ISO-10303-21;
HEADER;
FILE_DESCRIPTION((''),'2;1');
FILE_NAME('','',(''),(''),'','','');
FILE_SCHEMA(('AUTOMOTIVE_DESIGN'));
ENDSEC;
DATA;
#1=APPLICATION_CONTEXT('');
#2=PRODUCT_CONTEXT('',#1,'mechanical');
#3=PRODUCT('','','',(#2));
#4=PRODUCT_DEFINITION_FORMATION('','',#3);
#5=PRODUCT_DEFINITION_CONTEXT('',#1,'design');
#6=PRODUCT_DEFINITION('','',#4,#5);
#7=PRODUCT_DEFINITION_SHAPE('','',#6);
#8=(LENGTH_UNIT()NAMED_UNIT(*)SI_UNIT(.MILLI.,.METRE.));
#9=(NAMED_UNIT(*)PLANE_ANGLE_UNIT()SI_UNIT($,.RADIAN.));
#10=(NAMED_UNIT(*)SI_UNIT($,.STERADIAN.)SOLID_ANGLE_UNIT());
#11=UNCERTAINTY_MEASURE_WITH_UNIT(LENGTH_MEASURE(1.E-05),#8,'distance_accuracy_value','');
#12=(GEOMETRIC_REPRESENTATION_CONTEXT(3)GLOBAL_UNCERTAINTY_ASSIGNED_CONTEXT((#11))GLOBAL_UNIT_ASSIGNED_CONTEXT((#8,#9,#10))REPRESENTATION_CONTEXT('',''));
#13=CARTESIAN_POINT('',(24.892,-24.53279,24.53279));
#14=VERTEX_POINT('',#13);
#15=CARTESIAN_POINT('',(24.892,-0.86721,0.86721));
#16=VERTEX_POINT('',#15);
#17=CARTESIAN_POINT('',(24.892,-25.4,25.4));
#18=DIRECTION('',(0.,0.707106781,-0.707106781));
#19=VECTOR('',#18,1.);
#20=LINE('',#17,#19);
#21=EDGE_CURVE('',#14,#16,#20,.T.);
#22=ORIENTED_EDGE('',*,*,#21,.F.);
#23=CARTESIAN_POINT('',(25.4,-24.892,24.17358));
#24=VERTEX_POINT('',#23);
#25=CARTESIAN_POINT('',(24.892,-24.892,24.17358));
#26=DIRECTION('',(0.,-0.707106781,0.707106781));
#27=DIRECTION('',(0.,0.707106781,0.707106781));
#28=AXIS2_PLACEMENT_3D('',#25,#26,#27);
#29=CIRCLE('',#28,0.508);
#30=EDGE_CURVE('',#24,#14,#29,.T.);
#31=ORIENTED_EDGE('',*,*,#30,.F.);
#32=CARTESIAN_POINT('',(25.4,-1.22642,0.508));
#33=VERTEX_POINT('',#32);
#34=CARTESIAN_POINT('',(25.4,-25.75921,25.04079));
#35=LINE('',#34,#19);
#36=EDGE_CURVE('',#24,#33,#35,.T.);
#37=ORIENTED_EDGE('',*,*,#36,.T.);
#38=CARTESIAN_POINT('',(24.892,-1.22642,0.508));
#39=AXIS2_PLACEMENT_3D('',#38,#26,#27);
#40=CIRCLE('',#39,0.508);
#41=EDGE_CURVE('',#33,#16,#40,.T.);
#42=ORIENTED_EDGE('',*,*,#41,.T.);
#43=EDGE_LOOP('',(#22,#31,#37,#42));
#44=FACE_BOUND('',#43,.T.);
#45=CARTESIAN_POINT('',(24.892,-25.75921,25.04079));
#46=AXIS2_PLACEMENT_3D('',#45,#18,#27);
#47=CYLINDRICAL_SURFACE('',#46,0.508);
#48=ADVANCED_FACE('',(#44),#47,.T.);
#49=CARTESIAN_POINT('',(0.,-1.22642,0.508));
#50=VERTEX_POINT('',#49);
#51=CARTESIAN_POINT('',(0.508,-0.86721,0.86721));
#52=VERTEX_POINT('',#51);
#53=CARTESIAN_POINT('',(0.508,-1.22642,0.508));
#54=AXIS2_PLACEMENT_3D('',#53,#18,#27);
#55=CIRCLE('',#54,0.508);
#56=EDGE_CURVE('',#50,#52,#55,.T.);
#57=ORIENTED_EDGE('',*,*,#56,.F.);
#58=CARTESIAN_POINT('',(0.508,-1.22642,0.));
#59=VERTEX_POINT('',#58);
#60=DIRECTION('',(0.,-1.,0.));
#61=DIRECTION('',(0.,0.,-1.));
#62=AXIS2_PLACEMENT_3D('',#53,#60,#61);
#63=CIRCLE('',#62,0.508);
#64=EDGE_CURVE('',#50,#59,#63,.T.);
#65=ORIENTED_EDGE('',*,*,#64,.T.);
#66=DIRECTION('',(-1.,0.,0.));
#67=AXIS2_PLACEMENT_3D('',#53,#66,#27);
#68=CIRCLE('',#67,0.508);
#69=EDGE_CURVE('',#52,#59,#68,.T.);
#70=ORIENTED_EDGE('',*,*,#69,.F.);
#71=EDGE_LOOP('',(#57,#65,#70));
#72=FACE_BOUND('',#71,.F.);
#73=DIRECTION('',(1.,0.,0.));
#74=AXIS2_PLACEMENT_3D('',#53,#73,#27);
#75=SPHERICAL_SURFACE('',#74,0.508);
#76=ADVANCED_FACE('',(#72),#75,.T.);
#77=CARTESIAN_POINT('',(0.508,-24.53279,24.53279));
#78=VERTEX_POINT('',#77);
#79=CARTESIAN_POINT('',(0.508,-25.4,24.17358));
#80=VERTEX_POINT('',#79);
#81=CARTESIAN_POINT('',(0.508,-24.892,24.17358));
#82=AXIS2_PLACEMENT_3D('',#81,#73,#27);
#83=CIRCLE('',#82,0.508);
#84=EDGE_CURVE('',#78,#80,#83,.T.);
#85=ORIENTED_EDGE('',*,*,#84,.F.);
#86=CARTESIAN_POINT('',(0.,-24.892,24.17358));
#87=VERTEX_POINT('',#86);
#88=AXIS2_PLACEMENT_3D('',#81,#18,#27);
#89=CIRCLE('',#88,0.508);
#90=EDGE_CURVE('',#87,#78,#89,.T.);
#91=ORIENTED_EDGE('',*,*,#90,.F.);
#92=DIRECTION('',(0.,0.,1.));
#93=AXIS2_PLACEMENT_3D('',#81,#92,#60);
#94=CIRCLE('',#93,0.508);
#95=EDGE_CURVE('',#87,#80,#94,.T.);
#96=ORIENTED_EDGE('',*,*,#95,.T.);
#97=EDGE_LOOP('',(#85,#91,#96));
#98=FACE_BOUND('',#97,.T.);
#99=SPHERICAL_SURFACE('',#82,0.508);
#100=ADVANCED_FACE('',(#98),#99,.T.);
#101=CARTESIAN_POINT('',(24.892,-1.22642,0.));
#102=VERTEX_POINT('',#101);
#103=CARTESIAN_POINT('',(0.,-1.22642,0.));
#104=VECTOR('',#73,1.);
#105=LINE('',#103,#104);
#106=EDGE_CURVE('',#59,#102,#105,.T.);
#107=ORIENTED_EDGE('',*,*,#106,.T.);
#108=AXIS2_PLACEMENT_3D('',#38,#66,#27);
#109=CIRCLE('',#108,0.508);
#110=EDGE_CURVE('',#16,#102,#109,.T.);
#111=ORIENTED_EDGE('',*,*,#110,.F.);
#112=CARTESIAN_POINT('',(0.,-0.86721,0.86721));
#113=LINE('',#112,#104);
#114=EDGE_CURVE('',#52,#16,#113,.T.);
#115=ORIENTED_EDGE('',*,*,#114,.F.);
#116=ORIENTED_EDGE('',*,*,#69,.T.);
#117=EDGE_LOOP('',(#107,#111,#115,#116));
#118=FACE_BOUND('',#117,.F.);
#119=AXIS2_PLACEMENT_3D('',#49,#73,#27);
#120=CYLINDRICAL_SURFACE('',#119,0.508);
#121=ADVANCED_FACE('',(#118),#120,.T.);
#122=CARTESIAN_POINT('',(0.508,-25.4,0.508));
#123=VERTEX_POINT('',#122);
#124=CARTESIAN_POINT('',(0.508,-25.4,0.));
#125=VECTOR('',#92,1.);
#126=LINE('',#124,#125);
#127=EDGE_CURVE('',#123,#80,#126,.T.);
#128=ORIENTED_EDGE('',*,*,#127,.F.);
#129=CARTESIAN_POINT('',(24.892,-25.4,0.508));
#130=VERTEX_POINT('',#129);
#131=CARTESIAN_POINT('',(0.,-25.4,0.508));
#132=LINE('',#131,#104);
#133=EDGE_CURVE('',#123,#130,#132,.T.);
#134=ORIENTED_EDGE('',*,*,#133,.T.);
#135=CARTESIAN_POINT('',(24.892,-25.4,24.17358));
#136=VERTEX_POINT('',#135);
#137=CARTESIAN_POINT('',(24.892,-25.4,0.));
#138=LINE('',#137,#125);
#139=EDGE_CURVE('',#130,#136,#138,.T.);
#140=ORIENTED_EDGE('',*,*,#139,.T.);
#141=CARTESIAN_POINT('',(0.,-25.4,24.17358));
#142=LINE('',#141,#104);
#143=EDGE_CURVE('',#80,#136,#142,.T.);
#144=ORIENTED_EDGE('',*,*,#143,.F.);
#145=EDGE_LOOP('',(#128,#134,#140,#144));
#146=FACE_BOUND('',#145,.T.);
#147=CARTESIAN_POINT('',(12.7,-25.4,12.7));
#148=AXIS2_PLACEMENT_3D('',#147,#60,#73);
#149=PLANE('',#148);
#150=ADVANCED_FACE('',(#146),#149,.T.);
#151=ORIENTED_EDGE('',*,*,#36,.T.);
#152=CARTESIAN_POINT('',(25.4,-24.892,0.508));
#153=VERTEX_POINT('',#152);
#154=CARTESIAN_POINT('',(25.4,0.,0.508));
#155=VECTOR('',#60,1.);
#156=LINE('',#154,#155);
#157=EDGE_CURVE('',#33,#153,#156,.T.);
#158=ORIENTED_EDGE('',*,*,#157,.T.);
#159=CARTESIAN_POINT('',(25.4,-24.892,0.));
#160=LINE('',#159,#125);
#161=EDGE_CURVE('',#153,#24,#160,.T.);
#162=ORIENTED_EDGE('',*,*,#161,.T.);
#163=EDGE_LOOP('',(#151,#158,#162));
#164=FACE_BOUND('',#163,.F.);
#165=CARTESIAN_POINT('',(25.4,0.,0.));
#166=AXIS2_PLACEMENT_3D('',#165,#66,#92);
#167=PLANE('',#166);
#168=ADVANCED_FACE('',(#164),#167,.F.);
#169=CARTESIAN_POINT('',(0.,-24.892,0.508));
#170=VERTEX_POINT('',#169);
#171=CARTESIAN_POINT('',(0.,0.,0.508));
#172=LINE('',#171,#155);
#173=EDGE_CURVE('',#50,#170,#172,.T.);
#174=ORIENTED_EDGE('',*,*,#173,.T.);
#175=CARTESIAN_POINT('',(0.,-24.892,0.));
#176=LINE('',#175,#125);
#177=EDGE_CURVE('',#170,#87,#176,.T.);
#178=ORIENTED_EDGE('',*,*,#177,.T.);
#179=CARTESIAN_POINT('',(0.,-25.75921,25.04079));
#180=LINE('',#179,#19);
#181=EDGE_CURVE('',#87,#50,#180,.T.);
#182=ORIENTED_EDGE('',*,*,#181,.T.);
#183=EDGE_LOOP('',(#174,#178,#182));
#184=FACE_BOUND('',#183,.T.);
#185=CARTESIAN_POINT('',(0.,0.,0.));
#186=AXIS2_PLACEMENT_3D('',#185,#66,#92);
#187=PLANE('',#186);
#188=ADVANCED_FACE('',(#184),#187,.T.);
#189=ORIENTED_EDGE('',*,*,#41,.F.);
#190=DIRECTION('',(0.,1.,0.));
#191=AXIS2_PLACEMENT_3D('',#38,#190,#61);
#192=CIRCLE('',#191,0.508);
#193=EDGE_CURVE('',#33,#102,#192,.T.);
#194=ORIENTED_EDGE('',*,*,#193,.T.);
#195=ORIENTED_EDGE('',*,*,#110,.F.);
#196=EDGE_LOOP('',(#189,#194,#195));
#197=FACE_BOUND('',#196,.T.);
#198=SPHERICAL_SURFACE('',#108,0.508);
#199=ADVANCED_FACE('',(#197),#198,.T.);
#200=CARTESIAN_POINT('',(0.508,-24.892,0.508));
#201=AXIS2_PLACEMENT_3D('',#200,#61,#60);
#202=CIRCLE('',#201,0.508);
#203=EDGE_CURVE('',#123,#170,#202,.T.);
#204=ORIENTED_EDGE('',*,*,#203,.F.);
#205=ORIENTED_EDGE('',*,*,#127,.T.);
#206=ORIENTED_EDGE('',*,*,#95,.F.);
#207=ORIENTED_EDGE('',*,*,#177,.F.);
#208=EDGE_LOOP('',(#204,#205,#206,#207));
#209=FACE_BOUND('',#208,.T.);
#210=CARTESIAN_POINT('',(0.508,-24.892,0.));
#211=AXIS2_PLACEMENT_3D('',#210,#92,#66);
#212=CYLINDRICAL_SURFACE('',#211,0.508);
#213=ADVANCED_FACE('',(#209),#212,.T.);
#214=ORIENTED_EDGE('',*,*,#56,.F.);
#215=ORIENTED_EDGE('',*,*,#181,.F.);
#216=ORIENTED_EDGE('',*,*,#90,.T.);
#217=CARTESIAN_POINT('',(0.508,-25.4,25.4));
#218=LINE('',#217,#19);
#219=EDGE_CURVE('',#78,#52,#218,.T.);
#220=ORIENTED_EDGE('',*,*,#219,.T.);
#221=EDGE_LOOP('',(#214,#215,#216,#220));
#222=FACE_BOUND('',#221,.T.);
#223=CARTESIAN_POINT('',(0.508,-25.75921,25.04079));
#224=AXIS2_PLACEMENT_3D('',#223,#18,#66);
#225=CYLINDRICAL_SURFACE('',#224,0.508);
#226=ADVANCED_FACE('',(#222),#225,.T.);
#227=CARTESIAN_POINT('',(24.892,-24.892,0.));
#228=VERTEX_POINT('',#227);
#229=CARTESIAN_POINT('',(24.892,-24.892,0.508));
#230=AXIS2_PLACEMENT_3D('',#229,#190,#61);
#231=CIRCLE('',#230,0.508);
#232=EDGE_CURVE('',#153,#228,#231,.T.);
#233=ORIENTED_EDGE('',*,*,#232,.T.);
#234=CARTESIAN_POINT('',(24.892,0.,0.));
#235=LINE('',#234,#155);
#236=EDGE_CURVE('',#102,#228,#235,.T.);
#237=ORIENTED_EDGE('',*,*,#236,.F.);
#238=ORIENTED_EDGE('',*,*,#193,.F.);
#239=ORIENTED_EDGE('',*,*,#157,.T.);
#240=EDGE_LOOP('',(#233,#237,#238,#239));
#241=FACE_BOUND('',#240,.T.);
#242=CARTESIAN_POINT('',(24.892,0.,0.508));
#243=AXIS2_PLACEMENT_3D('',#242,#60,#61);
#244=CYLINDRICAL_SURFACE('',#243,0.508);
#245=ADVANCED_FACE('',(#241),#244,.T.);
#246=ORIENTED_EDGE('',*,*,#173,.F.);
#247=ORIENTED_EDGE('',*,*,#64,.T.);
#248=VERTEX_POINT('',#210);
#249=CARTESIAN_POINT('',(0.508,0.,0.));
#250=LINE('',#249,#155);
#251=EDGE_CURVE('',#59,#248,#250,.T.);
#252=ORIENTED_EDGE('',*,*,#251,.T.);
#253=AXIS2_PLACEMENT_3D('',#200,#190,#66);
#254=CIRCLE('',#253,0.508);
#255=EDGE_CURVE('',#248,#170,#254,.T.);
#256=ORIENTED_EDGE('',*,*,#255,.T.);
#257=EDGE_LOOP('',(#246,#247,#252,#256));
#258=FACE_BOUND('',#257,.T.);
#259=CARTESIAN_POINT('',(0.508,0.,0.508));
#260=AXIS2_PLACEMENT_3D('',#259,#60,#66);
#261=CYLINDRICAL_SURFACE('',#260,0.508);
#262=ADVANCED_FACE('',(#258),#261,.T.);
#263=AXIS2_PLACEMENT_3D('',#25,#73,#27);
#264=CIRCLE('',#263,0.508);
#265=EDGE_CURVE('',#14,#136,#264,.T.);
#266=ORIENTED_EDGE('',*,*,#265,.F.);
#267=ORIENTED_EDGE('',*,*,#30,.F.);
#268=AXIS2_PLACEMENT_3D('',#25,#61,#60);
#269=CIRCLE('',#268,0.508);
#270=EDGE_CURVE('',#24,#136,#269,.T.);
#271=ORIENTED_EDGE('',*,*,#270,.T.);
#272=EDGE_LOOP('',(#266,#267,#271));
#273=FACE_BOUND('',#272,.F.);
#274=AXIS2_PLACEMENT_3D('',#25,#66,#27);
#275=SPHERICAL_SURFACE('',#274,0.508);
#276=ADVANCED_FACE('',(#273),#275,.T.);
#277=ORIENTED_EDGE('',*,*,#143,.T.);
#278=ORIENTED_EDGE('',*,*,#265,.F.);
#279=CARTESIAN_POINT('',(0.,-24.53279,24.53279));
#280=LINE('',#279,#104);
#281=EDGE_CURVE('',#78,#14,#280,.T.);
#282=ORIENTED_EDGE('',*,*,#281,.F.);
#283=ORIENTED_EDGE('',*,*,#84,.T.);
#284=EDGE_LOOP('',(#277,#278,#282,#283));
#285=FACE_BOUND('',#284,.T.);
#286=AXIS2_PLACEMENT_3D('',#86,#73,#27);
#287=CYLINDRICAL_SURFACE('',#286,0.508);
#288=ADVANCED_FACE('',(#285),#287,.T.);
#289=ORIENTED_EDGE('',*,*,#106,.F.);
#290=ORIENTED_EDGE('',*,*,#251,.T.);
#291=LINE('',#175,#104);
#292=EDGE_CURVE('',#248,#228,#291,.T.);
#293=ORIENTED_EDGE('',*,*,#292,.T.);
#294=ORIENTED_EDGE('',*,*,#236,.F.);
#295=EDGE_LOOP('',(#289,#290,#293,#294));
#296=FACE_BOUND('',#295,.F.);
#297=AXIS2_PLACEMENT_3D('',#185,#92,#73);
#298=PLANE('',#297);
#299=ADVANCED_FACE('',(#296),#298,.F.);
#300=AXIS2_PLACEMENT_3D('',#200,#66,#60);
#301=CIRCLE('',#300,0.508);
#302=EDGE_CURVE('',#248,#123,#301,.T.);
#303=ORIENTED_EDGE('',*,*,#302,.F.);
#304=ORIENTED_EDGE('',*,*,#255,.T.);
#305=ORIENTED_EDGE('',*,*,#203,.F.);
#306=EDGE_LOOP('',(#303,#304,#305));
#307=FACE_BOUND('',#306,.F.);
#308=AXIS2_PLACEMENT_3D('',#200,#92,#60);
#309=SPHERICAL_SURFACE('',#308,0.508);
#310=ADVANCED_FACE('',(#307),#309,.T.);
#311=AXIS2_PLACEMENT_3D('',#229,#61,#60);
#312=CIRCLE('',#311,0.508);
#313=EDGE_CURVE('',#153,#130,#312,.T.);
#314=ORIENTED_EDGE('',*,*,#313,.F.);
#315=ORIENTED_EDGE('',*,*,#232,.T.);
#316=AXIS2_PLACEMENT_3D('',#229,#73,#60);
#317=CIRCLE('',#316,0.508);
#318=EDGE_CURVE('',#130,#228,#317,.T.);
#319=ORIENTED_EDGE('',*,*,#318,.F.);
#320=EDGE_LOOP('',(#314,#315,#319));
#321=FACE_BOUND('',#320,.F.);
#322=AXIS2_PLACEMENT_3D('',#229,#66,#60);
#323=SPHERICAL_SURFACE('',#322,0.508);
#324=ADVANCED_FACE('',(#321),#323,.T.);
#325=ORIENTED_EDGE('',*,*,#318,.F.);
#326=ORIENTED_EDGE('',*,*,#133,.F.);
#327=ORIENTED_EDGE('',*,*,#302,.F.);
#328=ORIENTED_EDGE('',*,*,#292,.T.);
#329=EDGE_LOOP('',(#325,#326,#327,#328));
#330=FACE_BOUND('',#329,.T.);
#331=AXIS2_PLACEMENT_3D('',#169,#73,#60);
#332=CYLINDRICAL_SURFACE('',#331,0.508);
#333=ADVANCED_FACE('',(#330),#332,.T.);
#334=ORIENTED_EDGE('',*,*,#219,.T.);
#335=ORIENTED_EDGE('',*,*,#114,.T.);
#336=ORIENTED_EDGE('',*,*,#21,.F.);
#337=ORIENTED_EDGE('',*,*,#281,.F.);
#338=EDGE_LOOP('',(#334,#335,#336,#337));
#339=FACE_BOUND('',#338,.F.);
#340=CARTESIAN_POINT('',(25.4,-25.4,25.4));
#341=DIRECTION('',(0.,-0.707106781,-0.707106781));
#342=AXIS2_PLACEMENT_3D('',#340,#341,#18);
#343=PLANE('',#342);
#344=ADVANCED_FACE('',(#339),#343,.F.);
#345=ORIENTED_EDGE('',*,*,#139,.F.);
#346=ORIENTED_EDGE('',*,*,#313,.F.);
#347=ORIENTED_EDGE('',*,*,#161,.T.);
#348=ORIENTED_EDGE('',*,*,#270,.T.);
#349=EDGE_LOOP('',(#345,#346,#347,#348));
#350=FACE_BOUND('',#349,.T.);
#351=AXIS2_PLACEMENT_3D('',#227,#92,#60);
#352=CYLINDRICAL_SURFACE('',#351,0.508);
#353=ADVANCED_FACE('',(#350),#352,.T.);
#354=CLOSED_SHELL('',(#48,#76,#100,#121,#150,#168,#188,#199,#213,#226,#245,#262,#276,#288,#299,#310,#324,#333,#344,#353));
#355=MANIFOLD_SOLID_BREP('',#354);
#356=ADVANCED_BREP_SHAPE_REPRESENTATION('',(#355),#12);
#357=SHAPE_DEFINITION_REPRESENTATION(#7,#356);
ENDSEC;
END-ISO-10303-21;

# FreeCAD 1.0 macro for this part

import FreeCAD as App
import Part
import Sketcher
Q = App.Units.Quantity


def add_polygon(sketch, points):
    """Adds a closed chain of lines whose ends are joined by coincident constraints."""
    first, n = sketch.GeometryCount, len(points)
    for a, b in zip(points, points[1:] + points[:1]):
        sketch.addGeometry(Part.LineSegment(App.Vector(*a, 0), App.Vector(*b, 0)), False)
    for i in range(n):
        sketch.addConstraint(Sketcher.Constraint("Coincident", first + i, 2, first + (i + 1) % n, 1))

doc = App.newDocument("Part")
params = doc.addObject("Spreadsheet::Sheet", "Params")
for row, (alias, value) in enumerate([
    ("sketch1_width", "1 in"),
    ("pad1_length", "1 in"),
    ("sketch2_width", "1 in"),
    ("pocket1_length", "1 in"),
    ("fillet_radius", "0.02 in"),
], start=1):
    params.set(f"A{row}", alias)
    params.set(f"B{row}", "=" + value)
    params.setAlias(f"B{row}", alias)

body = doc.addObject("PartDesign::Body", "Body")

# Sketch on XZ plane
sketch1 = body.newObject("Sketcher::SketchObject", "Sketch")
sketch1.AttachmentSupport = (doc.getObject("XZ_Plane"), [""])
sketch1.MapMode = "FlatFace"
add_polygon(sketch1, [(0, 25.4), (0, 0), (25.4, 0), (25.4, 25.4)])  # lines 0-3
sketch1.addConstraint([
    Sketcher.Constraint("Vertical", 0),
    Sketcher.Constraint("Horizontal", 1),
    Sketcher.Constraint("Vertical", 2),
    Sketcher.Constraint("Horizontal", 3),
    Sketcher.Constraint("Coincident", 0, 2, -1, 1),
    Sketcher.Constraint("Equal", 3, 0),
    Sketcher.Constraint("DistanceX", 1, 1, 1, 2, Q("1 in")),
])
sketch1.setExpression("Constraints[10]", "Params.sketch1_width")
pad1 = body.newObject("PartDesign::Pad", "Pad")
pad1.Profile = sketch1
pad1.setExpression("Length", "Params.pad1_length")

# Sketch on YZ plane
sketch2 = body.newObject("Sketcher::SketchObject", "Sketch001")
sketch2.AttachmentSupport = (doc.getObject("YZ_Plane"), [""])
sketch2.MapMode = "FlatFace"
sketch2.AttachmentOffset = App.Placement(App.Vector(0, 0, 1 * 25.4), App.Rotation())
add_polygon(sketch2, [(0, 25.4), (-25.4, 25.4), (0, 0)])  # lines 0-2
sketch2.addConstraint([
    Sketcher.Constraint("Horizontal", 0),
    Sketcher.Constraint("Vertical", 2),
    Sketcher.Constraint("Coincident", 1, 2, -1, 1),
    Sketcher.Constraint("Equal", 0, 2),
    Sketcher.Constraint("DistanceX", 0, 2, 0, 1, Q("1 in")),
])
sketch2.setExpression("Constraints[7]", "Params.sketch2_width")
pocket1 = body.newObject("PartDesign::Pocket", "Pocket")
pocket1.Profile = sketch2
pocket1.setExpression("Length", "Params.pocket1_length")
doc.recompute()

fillet = body.newObject("PartDesign::Fillet", "Fillet")
fillet.Base = (pocket1, ["Edge1"])
fillet.UseAllEdges = True
fillet.setExpression("Radius", "Params.fillet_radius")

doc.recompute()
